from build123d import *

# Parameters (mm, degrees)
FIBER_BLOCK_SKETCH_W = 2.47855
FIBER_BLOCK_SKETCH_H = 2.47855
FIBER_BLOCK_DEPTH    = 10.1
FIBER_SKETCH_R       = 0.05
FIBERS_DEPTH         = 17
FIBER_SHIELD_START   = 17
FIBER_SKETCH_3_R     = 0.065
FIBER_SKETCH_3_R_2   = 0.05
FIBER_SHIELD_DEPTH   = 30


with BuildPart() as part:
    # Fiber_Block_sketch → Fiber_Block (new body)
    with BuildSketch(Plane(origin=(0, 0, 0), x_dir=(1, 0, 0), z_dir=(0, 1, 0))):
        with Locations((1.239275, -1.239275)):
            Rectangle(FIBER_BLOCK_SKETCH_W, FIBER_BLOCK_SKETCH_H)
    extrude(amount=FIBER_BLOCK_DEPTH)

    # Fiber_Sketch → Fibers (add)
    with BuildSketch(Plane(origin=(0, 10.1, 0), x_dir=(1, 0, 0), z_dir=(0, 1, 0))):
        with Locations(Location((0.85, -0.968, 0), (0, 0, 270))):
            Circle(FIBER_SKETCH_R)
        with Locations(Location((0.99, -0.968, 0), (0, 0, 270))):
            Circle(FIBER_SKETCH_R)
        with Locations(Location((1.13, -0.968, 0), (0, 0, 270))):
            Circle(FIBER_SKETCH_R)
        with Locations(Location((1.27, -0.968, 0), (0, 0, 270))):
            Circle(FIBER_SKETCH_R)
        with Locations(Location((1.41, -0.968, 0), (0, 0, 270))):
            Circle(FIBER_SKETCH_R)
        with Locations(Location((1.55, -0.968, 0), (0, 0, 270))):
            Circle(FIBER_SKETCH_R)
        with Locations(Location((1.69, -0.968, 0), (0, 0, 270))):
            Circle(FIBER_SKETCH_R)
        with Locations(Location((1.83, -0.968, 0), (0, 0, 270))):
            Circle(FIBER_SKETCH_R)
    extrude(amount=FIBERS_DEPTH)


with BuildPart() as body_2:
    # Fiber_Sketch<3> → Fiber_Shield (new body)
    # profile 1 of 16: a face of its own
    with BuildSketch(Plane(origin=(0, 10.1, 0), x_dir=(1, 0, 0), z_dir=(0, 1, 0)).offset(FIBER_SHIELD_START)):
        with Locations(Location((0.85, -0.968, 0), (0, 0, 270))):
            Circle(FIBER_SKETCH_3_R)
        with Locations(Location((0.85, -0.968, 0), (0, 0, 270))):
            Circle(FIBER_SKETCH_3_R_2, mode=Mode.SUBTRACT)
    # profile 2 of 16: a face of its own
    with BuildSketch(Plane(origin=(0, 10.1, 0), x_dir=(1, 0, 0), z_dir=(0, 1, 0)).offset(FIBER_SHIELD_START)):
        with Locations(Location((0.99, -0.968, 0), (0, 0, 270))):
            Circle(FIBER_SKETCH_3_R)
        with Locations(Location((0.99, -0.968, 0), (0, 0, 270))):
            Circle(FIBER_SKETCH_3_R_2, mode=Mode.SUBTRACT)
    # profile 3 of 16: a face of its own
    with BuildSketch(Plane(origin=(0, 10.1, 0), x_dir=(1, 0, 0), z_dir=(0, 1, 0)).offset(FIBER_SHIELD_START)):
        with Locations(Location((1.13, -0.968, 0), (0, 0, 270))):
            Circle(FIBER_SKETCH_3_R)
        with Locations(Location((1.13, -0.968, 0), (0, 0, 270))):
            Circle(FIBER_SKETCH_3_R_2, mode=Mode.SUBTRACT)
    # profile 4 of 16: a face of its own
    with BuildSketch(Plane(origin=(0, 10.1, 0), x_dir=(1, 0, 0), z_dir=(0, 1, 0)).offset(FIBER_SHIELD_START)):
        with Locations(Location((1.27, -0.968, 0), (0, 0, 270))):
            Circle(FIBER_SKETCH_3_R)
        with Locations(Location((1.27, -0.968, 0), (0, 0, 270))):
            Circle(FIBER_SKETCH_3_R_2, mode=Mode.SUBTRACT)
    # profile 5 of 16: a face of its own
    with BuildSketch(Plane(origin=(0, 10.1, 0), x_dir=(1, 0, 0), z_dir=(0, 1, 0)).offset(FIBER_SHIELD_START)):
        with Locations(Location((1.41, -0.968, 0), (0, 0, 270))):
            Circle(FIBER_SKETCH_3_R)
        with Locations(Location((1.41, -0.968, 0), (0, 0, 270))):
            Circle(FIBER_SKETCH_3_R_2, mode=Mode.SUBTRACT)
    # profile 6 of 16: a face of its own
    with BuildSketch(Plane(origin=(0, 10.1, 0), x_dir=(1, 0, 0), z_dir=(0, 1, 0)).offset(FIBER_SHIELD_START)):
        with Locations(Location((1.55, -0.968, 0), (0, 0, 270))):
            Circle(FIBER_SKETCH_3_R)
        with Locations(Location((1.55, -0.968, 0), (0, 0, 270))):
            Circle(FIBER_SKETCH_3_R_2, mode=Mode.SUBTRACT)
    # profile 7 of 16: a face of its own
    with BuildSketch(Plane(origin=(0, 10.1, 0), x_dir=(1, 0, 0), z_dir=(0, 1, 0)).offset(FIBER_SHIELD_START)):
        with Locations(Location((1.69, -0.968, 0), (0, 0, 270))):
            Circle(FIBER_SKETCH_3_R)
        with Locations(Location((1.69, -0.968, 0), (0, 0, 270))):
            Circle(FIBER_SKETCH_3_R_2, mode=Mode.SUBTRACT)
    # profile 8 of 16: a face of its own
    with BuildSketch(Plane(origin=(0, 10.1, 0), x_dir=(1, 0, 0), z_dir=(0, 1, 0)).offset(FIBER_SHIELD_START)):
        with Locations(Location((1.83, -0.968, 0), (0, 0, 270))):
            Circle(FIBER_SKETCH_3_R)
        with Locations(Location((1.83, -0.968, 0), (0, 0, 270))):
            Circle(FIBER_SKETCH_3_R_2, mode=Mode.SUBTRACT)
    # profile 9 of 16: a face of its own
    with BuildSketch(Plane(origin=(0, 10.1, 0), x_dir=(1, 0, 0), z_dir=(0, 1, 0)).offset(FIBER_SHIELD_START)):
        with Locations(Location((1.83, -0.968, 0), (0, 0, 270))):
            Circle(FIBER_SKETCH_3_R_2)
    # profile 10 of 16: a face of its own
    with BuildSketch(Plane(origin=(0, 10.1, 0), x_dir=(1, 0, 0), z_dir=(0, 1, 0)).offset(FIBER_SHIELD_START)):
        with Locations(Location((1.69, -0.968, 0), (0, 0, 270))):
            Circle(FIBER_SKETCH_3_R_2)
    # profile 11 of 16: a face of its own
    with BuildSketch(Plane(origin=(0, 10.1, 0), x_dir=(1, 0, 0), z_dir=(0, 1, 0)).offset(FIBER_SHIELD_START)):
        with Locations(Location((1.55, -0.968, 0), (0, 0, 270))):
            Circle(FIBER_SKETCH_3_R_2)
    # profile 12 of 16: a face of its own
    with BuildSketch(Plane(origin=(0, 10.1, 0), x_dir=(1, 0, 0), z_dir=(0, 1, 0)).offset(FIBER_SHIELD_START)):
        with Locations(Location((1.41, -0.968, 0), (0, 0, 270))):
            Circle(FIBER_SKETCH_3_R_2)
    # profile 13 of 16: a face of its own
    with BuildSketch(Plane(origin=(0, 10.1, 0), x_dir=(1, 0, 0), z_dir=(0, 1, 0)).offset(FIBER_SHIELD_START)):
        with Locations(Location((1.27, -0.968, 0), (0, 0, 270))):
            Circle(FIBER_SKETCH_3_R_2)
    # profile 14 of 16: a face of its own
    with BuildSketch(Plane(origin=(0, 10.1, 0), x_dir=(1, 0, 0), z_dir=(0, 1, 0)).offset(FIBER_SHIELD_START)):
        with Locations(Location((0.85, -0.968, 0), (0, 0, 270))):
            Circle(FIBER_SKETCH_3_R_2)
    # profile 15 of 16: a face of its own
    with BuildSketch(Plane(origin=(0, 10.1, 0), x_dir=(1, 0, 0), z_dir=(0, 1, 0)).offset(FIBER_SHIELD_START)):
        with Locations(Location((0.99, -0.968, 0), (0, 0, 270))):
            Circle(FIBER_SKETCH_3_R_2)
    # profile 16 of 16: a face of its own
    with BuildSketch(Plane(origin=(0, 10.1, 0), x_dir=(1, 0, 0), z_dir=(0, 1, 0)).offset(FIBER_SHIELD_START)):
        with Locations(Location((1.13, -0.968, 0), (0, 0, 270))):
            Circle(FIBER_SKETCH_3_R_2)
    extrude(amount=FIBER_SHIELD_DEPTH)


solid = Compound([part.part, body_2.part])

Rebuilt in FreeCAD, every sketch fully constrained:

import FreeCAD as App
import Part
import Sketcher

V = App.Vector
Q = App.Units.Quantity


def add_polygon(sketch, points):
    """Adds a closed chain of lines whose ends are joined by coincident constraints."""
    first, n = sketch.GeometryCount, len(points)
    for a, b in zip(points, points[1:] + points[:1]):
        sketch.addGeometry(Part.LineSegment(App.Vector(*a, 0), App.Vector(*b, 0)), False)
    for i in range(n):
        sketch.addConstraint(Sketcher.Constraint("Coincident", first + i, 2, first + (i + 1) % n, 1))

doc = App.newDocument("Part")
body = doc.addObject("PartDesign::Body", "Body")

# Sketch on XZ plane
sketch1 = body.newObject("Sketcher::SketchObject", "Sketch")
sketch1.AttachmentSupport = (doc.getObject("XZ_Plane"), [""])
sketch1.MapMode = "FlatFace"
add_polygon(sketch1, [(0, 0), (0, 2.47855), (2.47855, 2.47855), (2.47855, 0)])  # lines 0-3
sketch1.addConstraint([
    Sketcher.Constraint("Vertical", 0),
    Sketcher.Constraint("Horizontal", 1),
    Sketcher.Constraint("Vertical", 2),
    Sketcher.Constraint("Horizontal", 3),
    Sketcher.Constraint("Coincident", 3, 2, -1, 1),
    Sketcher.Constraint("Equal", 3, 0),
    Sketcher.Constraint("DistanceX", 1, 1, 1, 2, Q("2.47855 mm")),
])
pad1 = body.newObject("PartDesign::Pad", "Pad")
pad1.Profile = sketch1
pad1.Length = 10.1
pad1.Reversed = True

# Sketch on XZ plane
sketch2 = body.newObject("Sketcher::SketchObject", "Sketch001")
sketch2.AttachmentSupport = (doc.getObject("XZ_Plane"), [""])
sketch2.MapMode = "FlatFace"
sketch2.AttachmentOffset = App.Placement(V(0, 0, -10.1), App.Rotation())
sketch2.addGeometry([
    Part.Circle(V(0.85, 0.968, 0), V(0, 0, 1), 0.05),  # 0
    Part.Circle(V(0.99, 0.968, 0), V(0, 0, 1), 0.05),  # 1
    Part.Circle(V(1.13, 0.968, 0), V(0, 0, 1), 0.05),  # 2
    Part.Circle(V(1.27, 0.968, 0), V(0, 0, 1), 0.05),  # 3
    Part.Circle(V(1.41, 0.968, 0), V(0, 0, 1), 0.05),  # 4
    Part.Circle(V(1.55, 0.968, 0), V(0, 0, 1), 0.05),  # 5
    Part.Circle(V(1.69, 0.968, 0), V(0, 0, 1), 0.05),  # 6
    Part.Circle(V(1.83, 0.968, 0), V(0, 0, 1), 0.05),  # 7
], False)
sketch2.addConstraint([
    Sketcher.Constraint("Equal", 0, 1),
    Sketcher.Constraint("Equal", 1, 2),
    Sketcher.Constraint("Equal", 2, 3),
    Sketcher.Constraint("Equal", 3, 4),
    Sketcher.Constraint("Equal", 4, 5),
    Sketcher.Constraint("Equal", 5, 6),
    Sketcher.Constraint("Equal", 6, 7),
    Sketcher.Constraint("Horizontal", 0, 3, 1, 3),
    Sketcher.Constraint("Horizontal", 1, 3, 2, 3),
    Sketcher.Constraint("Horizontal", 2, 3, 3, 3),
    Sketcher.Constraint("Horizontal", 3, 3, 4, 3),
    Sketcher.Constraint("Horizontal", 4, 3, 5, 3),
    Sketcher.Constraint("Horizontal", 5, 3, 6, 3),
    Sketcher.Constraint("Horizontal", 6, 3, 7, 3),
    Sketcher.Constraint("Diameter", 0, Q("0.1 mm")),
    Sketcher.Constraint("DistanceX", 0, 3, 5, 3, Q("0.7 mm")),
    Sketcher.Constraint("DistanceX", 1, 3, 6, 3, Q("0.7 mm")),
    Sketcher.Constraint("DistanceX", 2, 3, 7, 3, Q("0.7 mm")),
    Sketcher.Constraint("DistanceX", -1, 1, 0, 3, Q("0.85 mm")),
    Sketcher.Constraint("DistanceX", -1, 1, 1, 3, Q("0.99 mm")),
    Sketcher.Constraint("DistanceX", -1, 1, 2, 3, Q("1.13 mm")),
    Sketcher.Constraint("DistanceX", -1, 1, 3, 3, Q("1.27 mm")),
    Sketcher.Constraint("DistanceX", -1, 1, 4, 3, Q("1.41 mm")),
    Sketcher.Constraint("DistanceY", -1, 1, 0, 3, Q("0.968 mm")),
])
pad2 = body.newObject("PartDesign::Pad", "Pad001")
pad2.Profile = sketch2
pad2.Length = 17
pad2.Reversed = True
body2 = doc.addObject("PartDesign::Body", "Body001")
body2.AllowCompound = True

# Sketch on XZ plane
sketch3 = body2.newObject("Sketcher::SketchObject", "Sketch002")
sketch3.AttachmentSupport = (doc.getObject("XZ_Plane001"), [""])
sketch3.MapMode = "FlatFace"
sketch3.AttachmentOffset = App.Placement(V(0, 0, -27.1), App.Rotation())
sketch3.addGeometry([
    Part.Circle(V(0.85, 0.968, 0), V(0, 0, 1), 0.065),  # 0
    Part.Circle(V(0.99, 0.968, 0), V(0, 0, 1), 0.065),  # 1
    Part.Circle(V(1.13, 0.968, 0), V(0, 0, 1), 0.065),  # 2
    Part.Circle(V(1.27, 0.968, 0), V(0, 0, 1), 0.065),  # 3
    Part.Circle(V(1.41, 0.968, 0), V(0, 0, 1), 0.065),  # 4
    Part.Circle(V(1.55, 0.968, 0), V(0, 0, 1), 0.065),  # 5
    Part.Circle(V(1.69, 0.968, 0), V(0, 0, 1), 0.065),  # 6
    Part.Circle(V(1.83, 0.968, 0), V(0, 0, 1), 0.065),  # 7
], False)
sketch3.addConstraint([
    Sketcher.Constraint("Equal", 0, 1),
    Sketcher.Constraint("Equal", 1, 2),
    Sketcher.Constraint("Equal", 2, 3),
    Sketcher.Constraint("Equal", 3, 4),
    Sketcher.Constraint("Equal", 4, 5),
    Sketcher.Constraint("Equal", 5, 6),
    Sketcher.Constraint("Equal", 6, 7),
    Sketcher.Constraint("Horizontal", 0, 3, 1, 3),
    Sketcher.Constraint("Horizontal", 1, 3, 2, 3),
    Sketcher.Constraint("Horizontal", 2, 3, 3, 3),
    Sketcher.Constraint("Horizontal", 3, 3, 4, 3),
    Sketcher.Constraint("Horizontal", 4, 3, 5, 3),
    Sketcher.Constraint("Horizontal", 5, 3, 6, 3),
    Sketcher.Constraint("Horizontal", 6, 3, 7, 3),
    Sketcher.Constraint("Diameter", 0, Q("0.13 mm")),
    Sketcher.Constraint("DistanceX", 0, 3, 5, 3, Q("0.7 mm")),
    Sketcher.Constraint("DistanceX", 1, 3, 6, 3, Q("0.7 mm")),
    Sketcher.Constraint("DistanceX", 2, 3, 7, 3, Q("0.7 mm")),
    Sketcher.Constraint("DistanceX", -1, 1, 0, 3, Q("0.85 mm")),
    Sketcher.Constraint("DistanceX", -1, 1, 1, 3, Q("0.99 mm")),
    Sketcher.Constraint("DistanceX", -1, 1, 2, 3, Q("1.13 mm")),
    Sketcher.Constraint("DistanceX", -1, 1, 3, 3, Q("1.27 mm")),
    Sketcher.Constraint("DistanceX", -1, 1, 4, 3, Q("1.41 mm")),
    Sketcher.Constraint("DistanceY", -1, 1, 0, 3, Q("0.968 mm")),
])
pad3 = body2.newObject("PartDesign::Pad", "Pad002")
pad3.Profile = sketch3
pad3.Length = 30
pad3.Reversed = True

doc.recompute()
